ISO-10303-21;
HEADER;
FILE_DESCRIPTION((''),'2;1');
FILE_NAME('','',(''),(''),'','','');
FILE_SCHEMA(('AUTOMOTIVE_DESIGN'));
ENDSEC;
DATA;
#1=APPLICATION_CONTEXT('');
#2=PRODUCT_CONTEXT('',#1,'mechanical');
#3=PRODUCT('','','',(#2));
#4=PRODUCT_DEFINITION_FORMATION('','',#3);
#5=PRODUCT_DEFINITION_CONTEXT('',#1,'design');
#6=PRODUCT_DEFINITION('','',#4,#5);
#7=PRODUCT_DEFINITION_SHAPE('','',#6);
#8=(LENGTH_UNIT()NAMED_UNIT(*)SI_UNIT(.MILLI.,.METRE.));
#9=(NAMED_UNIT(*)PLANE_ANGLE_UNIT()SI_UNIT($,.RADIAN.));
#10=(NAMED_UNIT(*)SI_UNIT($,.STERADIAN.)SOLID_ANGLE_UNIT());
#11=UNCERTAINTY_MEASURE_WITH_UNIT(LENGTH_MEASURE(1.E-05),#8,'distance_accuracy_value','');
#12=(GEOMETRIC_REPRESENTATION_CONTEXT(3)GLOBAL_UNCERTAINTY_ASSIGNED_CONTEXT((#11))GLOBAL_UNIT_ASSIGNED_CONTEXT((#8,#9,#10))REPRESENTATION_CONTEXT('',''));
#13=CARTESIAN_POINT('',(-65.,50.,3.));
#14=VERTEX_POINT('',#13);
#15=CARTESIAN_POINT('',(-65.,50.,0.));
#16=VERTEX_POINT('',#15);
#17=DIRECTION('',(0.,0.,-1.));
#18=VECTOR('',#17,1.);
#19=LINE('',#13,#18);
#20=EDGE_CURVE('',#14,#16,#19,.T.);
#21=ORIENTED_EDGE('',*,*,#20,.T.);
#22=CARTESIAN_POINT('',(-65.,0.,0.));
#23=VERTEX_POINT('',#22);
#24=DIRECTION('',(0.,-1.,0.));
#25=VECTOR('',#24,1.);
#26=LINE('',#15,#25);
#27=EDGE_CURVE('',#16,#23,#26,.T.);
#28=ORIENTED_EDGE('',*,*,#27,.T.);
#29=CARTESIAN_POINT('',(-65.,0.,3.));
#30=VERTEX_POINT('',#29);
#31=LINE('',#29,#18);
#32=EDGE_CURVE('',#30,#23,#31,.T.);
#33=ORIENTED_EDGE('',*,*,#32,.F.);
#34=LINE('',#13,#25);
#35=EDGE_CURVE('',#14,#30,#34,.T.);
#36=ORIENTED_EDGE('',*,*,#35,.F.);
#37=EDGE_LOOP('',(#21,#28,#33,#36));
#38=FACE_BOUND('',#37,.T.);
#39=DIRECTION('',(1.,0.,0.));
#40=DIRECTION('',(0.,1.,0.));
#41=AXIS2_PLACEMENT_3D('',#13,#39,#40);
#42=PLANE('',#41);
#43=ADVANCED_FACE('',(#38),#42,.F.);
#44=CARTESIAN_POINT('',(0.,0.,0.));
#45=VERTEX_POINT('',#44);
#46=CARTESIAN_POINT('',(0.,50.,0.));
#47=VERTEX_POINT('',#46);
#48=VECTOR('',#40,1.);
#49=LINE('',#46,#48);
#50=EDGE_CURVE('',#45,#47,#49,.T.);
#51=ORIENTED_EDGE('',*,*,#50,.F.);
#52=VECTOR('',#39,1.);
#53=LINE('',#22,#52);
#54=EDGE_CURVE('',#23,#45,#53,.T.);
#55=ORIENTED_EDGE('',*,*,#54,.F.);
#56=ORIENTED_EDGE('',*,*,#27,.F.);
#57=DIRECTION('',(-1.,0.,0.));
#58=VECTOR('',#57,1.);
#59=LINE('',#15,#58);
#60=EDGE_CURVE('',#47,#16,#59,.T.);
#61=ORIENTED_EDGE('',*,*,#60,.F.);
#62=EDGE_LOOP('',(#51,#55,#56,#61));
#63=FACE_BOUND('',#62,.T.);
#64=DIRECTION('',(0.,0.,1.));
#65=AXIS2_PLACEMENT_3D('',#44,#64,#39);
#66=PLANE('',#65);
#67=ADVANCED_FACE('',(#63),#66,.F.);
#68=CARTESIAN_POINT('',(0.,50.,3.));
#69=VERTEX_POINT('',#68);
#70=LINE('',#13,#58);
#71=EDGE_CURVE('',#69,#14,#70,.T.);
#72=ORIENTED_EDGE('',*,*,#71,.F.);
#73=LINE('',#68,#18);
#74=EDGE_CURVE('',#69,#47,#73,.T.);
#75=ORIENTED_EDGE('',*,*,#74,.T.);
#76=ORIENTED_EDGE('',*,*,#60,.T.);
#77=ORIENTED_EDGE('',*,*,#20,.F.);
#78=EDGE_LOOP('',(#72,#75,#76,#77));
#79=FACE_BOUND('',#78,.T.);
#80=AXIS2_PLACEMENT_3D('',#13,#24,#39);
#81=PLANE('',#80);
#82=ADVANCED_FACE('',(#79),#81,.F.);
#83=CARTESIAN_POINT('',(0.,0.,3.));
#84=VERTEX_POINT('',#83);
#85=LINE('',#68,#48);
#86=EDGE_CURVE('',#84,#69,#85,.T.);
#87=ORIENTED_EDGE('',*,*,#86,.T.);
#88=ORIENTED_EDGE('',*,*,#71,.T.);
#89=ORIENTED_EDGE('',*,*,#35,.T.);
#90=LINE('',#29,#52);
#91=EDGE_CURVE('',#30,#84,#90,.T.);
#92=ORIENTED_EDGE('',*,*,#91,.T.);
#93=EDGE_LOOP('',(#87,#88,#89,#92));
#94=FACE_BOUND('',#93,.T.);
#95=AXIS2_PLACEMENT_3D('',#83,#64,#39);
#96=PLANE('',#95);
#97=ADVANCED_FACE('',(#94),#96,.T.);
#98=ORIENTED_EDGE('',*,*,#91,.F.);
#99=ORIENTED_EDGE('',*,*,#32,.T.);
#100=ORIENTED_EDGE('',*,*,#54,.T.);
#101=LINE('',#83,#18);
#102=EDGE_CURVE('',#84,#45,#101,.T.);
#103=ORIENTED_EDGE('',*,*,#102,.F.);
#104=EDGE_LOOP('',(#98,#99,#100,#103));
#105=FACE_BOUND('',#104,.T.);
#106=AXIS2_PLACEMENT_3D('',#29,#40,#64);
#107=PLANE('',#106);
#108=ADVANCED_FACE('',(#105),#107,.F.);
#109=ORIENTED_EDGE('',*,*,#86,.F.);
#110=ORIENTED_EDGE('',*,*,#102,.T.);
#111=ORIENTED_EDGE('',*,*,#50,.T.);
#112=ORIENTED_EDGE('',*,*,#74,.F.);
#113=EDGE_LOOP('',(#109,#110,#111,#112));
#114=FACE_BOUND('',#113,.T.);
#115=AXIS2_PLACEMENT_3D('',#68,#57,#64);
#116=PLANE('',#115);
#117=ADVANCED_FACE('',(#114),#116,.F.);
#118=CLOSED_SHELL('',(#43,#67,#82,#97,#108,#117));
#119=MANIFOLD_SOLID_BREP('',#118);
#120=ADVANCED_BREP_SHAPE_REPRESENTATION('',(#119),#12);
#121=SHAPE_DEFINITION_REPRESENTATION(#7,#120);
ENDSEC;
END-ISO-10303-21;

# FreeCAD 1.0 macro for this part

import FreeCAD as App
import Part
import Sketcher

V = App.Vector


def add_polygon(sketch, points):
    """Adds a closed chain of lines whose ends are joined by coincident constraints."""
    first, n = sketch.GeometryCount, len(points)
    for a, b in zip(points, points[1:] + points[:1]):
        sketch.addGeometry(Part.LineSegment(App.Vector(*a, 0), App.Vector(*b, 0)), False)
    for i in range(n):
        sketch.addConstraint(Sketcher.Constraint("Coincident", first + i, 2, first + (i + 1) % n, 1))

doc = App.newDocument("Part")
body = doc.addObject("PartDesign::Body", "Body")

# Sketch on XY plane
sketch1 = doc.addObject("Sketcher::SketchObject", "Sketch")
body.addObject(sketch1)
sketch1.AttachmentSupport = (doc.XY_Plane, [""])
sketch1.MapMode = "FlatFace"
add_polygon(sketch1, [(-65, 50), (-65, 0), (0, 0), (0, 50)])  # lines 0-3
sketch1.addConstraint([
    Sketcher.Constraint("Vertical", 0),
    Sketcher.Constraint("Horizontal", 1),
    Sketcher.Constraint("Vertical", 2),
    Sketcher.Constraint("Horizontal", 3),
    Sketcher.Constraint("Coincident", 1, 2, -1, 1),
    Sketcher.Constraint("DistanceX", 1, 1, 1, 2, 65.0),
    Sketcher.Constraint("DistanceY", 0, 2, 0, 1, 50.0),
])
pad1 = doc.addObject("PartDesign::Pad", "Pad")
body.addObject(pad1)
pad1.Profile = sketch1
pad1.Length = 3

doc.recompute()
